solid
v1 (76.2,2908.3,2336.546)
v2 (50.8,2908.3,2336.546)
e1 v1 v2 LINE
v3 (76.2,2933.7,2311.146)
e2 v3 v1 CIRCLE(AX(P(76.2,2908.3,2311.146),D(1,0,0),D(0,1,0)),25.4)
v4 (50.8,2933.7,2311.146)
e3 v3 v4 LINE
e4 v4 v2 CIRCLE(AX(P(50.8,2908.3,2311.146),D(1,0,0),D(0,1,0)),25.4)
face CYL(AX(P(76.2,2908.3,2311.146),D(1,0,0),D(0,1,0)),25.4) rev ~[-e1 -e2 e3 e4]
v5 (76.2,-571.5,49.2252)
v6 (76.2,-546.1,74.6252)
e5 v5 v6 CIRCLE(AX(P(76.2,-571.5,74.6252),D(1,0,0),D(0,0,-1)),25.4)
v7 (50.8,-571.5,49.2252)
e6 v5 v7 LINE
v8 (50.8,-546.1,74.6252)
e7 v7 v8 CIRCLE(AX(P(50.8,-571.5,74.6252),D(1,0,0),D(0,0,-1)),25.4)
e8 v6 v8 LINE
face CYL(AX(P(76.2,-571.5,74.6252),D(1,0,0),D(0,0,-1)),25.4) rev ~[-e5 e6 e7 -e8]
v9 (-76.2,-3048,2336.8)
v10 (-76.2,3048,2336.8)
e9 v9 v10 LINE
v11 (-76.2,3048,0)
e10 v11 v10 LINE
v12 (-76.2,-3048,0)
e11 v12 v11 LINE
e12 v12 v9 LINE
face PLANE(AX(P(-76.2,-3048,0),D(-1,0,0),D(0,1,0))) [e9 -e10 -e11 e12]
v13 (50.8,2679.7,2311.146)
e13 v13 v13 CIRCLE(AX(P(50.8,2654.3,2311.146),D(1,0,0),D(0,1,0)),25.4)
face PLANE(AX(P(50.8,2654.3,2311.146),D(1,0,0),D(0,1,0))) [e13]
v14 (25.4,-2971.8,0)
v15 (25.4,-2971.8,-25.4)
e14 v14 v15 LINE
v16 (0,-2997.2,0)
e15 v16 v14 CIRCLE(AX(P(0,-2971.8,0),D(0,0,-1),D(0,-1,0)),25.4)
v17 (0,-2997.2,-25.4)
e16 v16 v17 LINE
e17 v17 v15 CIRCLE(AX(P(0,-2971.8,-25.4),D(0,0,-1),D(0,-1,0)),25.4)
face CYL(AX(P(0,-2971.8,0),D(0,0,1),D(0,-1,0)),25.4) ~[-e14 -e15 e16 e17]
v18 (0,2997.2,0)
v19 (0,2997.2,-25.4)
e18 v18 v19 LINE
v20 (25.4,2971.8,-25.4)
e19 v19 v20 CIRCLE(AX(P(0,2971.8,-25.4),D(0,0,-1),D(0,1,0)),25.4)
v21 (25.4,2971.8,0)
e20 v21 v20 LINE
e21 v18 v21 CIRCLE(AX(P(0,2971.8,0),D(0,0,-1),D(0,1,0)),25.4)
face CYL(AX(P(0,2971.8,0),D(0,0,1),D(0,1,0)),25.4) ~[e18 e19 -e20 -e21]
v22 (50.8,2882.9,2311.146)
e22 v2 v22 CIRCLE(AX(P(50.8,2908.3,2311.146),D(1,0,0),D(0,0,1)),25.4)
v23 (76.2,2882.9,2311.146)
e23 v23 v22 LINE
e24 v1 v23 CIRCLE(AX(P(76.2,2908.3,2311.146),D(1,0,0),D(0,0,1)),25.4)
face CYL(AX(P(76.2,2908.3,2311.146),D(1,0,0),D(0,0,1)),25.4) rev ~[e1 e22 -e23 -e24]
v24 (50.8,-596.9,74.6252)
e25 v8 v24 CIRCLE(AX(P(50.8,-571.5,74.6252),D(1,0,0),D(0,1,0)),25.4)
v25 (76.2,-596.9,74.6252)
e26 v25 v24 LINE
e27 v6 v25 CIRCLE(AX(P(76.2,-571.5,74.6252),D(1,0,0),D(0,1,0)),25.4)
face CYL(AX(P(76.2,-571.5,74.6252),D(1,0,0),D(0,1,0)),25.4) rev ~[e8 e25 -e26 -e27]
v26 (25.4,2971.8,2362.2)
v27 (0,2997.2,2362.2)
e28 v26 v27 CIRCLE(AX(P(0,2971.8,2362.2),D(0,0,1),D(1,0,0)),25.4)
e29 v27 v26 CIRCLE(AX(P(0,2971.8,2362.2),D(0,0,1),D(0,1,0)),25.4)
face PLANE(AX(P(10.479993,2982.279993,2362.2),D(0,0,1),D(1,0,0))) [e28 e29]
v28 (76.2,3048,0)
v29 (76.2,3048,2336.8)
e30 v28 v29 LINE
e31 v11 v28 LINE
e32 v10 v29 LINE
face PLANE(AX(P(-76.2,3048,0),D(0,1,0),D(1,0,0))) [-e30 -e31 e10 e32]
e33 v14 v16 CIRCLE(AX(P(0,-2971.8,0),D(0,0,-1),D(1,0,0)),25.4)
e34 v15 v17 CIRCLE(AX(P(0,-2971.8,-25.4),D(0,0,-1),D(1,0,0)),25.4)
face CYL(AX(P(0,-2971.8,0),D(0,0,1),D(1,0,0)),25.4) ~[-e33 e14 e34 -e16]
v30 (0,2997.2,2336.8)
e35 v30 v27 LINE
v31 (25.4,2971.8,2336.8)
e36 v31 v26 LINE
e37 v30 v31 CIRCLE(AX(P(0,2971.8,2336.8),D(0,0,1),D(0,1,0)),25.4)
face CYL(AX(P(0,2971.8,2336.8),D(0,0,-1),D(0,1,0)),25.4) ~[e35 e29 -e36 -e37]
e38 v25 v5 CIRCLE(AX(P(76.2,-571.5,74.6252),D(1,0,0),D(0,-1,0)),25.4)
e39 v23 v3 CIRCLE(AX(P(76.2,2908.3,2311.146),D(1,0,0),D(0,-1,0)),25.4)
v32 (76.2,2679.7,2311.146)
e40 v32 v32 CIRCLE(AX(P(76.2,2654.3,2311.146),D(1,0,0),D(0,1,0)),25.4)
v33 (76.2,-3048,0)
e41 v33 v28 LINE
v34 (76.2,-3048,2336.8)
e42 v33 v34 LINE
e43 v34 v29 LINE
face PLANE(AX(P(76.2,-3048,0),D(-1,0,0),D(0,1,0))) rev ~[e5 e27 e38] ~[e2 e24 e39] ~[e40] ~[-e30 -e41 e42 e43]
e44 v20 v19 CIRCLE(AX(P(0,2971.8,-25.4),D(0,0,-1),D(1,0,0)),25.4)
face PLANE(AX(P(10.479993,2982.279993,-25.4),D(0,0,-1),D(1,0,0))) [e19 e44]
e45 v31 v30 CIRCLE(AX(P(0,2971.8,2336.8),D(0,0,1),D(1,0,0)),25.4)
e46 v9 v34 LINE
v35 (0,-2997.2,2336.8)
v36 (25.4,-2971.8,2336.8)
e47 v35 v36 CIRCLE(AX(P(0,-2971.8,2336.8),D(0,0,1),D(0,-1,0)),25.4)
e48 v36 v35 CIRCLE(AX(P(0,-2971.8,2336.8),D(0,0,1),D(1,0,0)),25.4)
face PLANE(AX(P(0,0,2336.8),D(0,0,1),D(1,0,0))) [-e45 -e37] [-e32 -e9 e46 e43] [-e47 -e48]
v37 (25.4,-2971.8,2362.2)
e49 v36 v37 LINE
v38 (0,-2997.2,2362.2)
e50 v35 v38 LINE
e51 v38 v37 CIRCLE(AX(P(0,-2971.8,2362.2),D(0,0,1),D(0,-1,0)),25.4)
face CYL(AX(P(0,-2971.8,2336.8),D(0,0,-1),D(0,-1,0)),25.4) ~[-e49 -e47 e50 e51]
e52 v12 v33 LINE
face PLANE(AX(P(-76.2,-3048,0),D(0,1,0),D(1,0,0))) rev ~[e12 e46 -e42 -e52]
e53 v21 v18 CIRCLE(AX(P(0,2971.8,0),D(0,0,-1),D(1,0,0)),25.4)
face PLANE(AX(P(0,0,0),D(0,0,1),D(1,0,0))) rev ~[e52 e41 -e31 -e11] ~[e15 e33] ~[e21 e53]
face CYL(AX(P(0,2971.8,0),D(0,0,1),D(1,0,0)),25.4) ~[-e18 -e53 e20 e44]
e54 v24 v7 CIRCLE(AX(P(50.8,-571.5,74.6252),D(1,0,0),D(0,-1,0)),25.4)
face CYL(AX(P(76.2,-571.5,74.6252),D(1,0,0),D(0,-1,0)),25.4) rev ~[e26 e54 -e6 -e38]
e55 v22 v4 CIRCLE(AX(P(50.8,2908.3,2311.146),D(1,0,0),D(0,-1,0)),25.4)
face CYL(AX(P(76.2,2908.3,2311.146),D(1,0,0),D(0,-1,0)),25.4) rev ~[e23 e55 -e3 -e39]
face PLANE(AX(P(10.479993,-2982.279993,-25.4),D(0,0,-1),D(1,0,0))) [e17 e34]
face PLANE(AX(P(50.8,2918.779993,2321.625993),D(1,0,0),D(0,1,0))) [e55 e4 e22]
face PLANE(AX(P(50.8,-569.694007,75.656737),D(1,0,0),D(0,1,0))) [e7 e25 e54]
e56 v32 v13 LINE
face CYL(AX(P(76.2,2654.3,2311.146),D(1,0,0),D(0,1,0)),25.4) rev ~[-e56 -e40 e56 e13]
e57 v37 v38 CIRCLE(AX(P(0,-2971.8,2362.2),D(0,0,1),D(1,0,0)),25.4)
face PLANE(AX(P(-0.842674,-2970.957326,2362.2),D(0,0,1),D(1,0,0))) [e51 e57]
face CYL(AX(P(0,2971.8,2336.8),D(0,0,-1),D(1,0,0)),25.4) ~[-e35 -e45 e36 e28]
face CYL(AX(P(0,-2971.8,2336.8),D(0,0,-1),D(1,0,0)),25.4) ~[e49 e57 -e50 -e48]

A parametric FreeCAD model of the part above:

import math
import FreeCAD as App
import Part
import Sketcher
Q = App.Units.Quantity

doc = App.newDocument("Part")
body = doc.addObject("PartDesign::Body", "Body")

sketch1 = body.newObject("Sketcher::SketchObject", "Sketch")
sketch1.AttachmentSupport = (doc.getObject("XY_Plane"), [""])
sketch1.MapMode = "FlatFace"
sketch1.addGeometry([
    Part.LineSegment(App.Vector(-76.2, 3048, 0), App.Vector(-76.2, -3048, 0)),
    Part.LineSegment(App.Vector(-76.2, -3048, 0), App.Vector(76.2, -3048, 0)),
    Part.LineSegment(App.Vector(76.2, -3048, 0), App.Vector(76.2, 3048, 0)),
    Part.LineSegment(App.Vector(76.2, 3048, 0), App.Vector(-76.2, 3048, 0)),
], False)
sketch1.addConstraint([
    Sketcher.Constraint("Coincident", 0, 2, 1, 1),
    Sketcher.Constraint("Coincident", 1, 2, 2, 1),
    Sketcher.Constraint("Coincident", 2, 2, 3, 1),
    Sketcher.Constraint("Coincident", 3, 2, 0, 1),
    Sketcher.Constraint("Vertical", 0),
    Sketcher.Constraint("Horizontal", 1),
    Sketcher.Constraint("Vertical", 2),
    Sketcher.Constraint("Horizontal", 3),
    Sketcher.Constraint("Symmetric", 0, 2, 2, 2, -1, 1),
    Sketcher.Constraint("DistanceX", 1, 1, 1, 2, Q("6 in")),
    Sketcher.Constraint("DistanceY", 0, 2, 0, 1, Q("240 in")),
])
pad1 = body.newObject("PartDesign::Pad", "Pad")
pad1.Profile = sketch1
pad1.Length = Q("92 in")

sketch2 = body.newObject("Sketcher::SketchObject", "Sketch001")
sketch2.AttachmentSupport = (doc.getObject("XY_Plane"), [""])
sketch2.MapMode = "FlatFace"
sketch2.AttachmentOffset = App.Placement(App.Vector(0, 0, 92 * 25.4), App.Rotation())
sketch2.addGeometry([
    Part.ArcOfCircle(Part.Circle(App.Vector(0, 2971.8, 0), App.Vector(0, 0, 1), 25.4), math.radians(0), math.radians(90)),
    Part.ArcOfCircle(Part.Circle(App.Vector(0, 2971.8, 0), App.Vector(0, 0, 1), 25.4), math.radians(90), math.radians(360)),
    Part.ArcOfCircle(Part.Circle(App.Vector(0, -2971.8, 0), App.Vector(0, 0, 1), 25.4), math.radians(0), math.radians(270)),
    Part.ArcOfCircle(Part.Circle(App.Vector(0, -2971.8, 0), App.Vector(0, 0, 1), 25.4), math.radians(-90), math.radians(0)),
], False)
sketch2.addConstraint([
    Sketcher.Constraint("Tangent", 0, 1, 1, 2),
    Sketcher.Constraint("Coincident", 1, 1, 0, 2),
    Sketcher.Constraint("Tangent", 2, 1, 3, 2),
    Sketcher.Constraint("Coincident", 3, 1, 2, 2),
    Sketcher.Constraint("Equal", 1, 2),
    Sketcher.Constraint("Symmetric", 0, 3, 2, 3, -1, 1),
    Sketcher.Constraint("Symmetric", 0, 1, 2, 1, -1),
    Sketcher.Constraint("PointOnObject", 1, 1, -2),
    Sketcher.Constraint("PointOnObject", 3, 1, -2),
    Sketcher.Constraint("Horizontal", 1, 3, 0, 1),
    Sketcher.Constraint("Radius", 0, Q("1 in")),
    Sketcher.Constraint("DistanceY", -1, 1, 0, 3, Q("117 in")),
])
pad2 = body.newObject("PartDesign::Pad", "Pad001")
pad2.Profile = sketch2
pad2.Length = Q("1 in")

sketch3 = body.newObject("Sketcher::SketchObject", "Sketch002")
sketch3.AttachmentSupport = (doc.getObject("XY_Plane"), [""])
sketch3.MapMode = "FlatFace"
sketch3.addGeometry([
    Part.ArcOfCircle(Part.Circle(App.Vector(0, -2971.8, 0), App.Vector(0, 0, 1), 25.4), math.radians(-90), math.radians(0)),
    Part.ArcOfCircle(Part.Circle(App.Vector(0, -2971.8, 0), App.Vector(0, 0, 1), 25.4), math.radians(0), math.radians(270)),
    Part.ArcOfCircle(Part.Circle(App.Vector(0, 2971.8, 0), App.Vector(0, 0, 1), 25.4), math.radians(0), math.radians(90)),
    Part.ArcOfCircle(Part.Circle(App.Vector(0, 2971.8, 0), App.Vector(0, 0, 1), 25.4), math.radians(90), math.radians(360)),
], False)
sketch3.addConstraint([
    Sketcher.Constraint("Tangent", 0, 1, 1, 2),
    Sketcher.Constraint("Coincident", 1, 1, 0, 2),
    Sketcher.Constraint("Tangent", 2, 1, 3, 2),
    Sketcher.Constraint("Coincident", 3, 1, 2, 2),
    Sketcher.Constraint("Equal", 1, 2),
    Sketcher.Constraint("Symmetric", 0, 3, 2, 3, -1, 1),
    Sketcher.Constraint("Symmetric", 1, 1, 2, 1, -1),
    Sketcher.Constraint("PointOnObject", 0, 1, -2),
    Sketcher.Constraint("PointOnObject", 3, 1, -2),
    Sketcher.Constraint("Horizontal", 0, 3, 1, 1),
    Sketcher.Constraint("Radius", 0, Q("1 in")),
    Sketcher.Constraint("DistanceY", 0, 3, -1, 1, Q("117 in")),
])
pad3 = body.newObject("PartDesign::Pad", "Pad002")
pad3.Profile = sketch3
pad3.Length = Q("1 in")
pad3.Reversed = True

sketch4 = body.newObject("Sketcher::SketchObject", "Sketch003")
sketch4.AttachmentSupport = (doc.getObject("YZ_Plane"), [""])
sketch4.MapMode = "FlatFace"
sketch4.AttachmentOffset = App.Placement(App.Vector(0, 0, 3 * 25.4), App.Rotation())
sketch4.addGeometry([
    Part.ArcOfCircle(Part.Circle(App.Vector(-571.5, 74.6252, 0), App.Vector(0, 0, 1), 25.4), math.radians(-90), math.radians(0)),
    Part.ArcOfCircle(Part.Circle(App.Vector(-571.5, 74.6252, 0), App.Vector(0, 0, 1), 25.4), math.radians(0), math.radians(180)),
    Part.ArcOfCircle(Part.Circle(App.Vector(-571.5, 74.6252, 0), App.Vector(0, 0, 1), 25.4), math.radians(180), math.radians(270)),
    Part.ArcOfCircle(Part.Circle(App.Vector(2908.3, 2311.146, 0), App.Vector(0, 0, 1), 25.4), math.radians(0), math.radians(90)),
    Part.ArcOfCircle(Part.Circle(App.Vector(2908.3, 2311.146, 0), App.Vector(0, 0, 1), 25.4), math.radians(90), math.radians(180)),
    Part.ArcOfCircle(Part.Circle(App.Vector(2908.3, 2311.146, 0), App.Vector(0, 0, 1), 25.4), math.radians(180), math.radians(360)),
    Part.Circle(App.Vector(2654.3, 2311.146, 0), App.Vector(0, 0, 1), 25.4),
], False)
sketch4.addConstraint([
    Sketcher.Constraint("Tangent", 0, 2, 1, 1),
    Sketcher.Constraint("Tangent", 1, 2, 2, 1),
    Sketcher.Constraint("Tangent", 2, 2, 0, 1),
    Sketcher.Constraint("Tangent", 3, 2, 4, 1),
    Sketcher.Constraint("Tangent", 4, 2, 5, 1),
    Sketcher.Constraint("Tangent", 5, 2, 3, 1),
    Sketcher.Constraint("Equal", 2, 3),
    Sketcher.Constraint("Equal", 5, 6),
    Sketcher.Constraint("Horizontal", 5, 3, 6, 3),
    Sketcher.Constraint("Horizontal", 2, 3, 0, 2),
    Sketcher.Constraint("Horizontal", 0, 2, 1, 2),
    Sketcher.Constraint("Horizontal", 6, 3, 4, 2),
    Sketcher.Constraint("Horizontal", 4, 2, 5, 2),
    Sketcher.Constraint("Vertical", 1, 3, 2, 2),
    Sketcher.Constraint("Vertical", 5, 3, 3, 2),
    Sketcher.Constraint("Diameter", 6, Q("2 in")),
    Sketcher.Constraint("DistanceX", 0, 3, 3, 3, Q("137 in")),
    Sketcher.Constraint("DistanceX", 6, 3, 3, 3, Q("10 in")),
    Sketcher.Constraint("DistanceX", 0, 3, -1, 1, Q("22.5 in")),
    Sketcher.Constraint("DistanceY", -1, 1, 3, 3, Q("90.99 in")),
    Sketcher.Constraint("DistanceY", -1, 1, 0, 3, Q("2.938 in")),
])
pocket1 = body.newObject("PartDesign::Pocket", "Pocket")
pocket1.Profile = sketch4
pocket1.Length = Q("1 in")

doc.recompute()
